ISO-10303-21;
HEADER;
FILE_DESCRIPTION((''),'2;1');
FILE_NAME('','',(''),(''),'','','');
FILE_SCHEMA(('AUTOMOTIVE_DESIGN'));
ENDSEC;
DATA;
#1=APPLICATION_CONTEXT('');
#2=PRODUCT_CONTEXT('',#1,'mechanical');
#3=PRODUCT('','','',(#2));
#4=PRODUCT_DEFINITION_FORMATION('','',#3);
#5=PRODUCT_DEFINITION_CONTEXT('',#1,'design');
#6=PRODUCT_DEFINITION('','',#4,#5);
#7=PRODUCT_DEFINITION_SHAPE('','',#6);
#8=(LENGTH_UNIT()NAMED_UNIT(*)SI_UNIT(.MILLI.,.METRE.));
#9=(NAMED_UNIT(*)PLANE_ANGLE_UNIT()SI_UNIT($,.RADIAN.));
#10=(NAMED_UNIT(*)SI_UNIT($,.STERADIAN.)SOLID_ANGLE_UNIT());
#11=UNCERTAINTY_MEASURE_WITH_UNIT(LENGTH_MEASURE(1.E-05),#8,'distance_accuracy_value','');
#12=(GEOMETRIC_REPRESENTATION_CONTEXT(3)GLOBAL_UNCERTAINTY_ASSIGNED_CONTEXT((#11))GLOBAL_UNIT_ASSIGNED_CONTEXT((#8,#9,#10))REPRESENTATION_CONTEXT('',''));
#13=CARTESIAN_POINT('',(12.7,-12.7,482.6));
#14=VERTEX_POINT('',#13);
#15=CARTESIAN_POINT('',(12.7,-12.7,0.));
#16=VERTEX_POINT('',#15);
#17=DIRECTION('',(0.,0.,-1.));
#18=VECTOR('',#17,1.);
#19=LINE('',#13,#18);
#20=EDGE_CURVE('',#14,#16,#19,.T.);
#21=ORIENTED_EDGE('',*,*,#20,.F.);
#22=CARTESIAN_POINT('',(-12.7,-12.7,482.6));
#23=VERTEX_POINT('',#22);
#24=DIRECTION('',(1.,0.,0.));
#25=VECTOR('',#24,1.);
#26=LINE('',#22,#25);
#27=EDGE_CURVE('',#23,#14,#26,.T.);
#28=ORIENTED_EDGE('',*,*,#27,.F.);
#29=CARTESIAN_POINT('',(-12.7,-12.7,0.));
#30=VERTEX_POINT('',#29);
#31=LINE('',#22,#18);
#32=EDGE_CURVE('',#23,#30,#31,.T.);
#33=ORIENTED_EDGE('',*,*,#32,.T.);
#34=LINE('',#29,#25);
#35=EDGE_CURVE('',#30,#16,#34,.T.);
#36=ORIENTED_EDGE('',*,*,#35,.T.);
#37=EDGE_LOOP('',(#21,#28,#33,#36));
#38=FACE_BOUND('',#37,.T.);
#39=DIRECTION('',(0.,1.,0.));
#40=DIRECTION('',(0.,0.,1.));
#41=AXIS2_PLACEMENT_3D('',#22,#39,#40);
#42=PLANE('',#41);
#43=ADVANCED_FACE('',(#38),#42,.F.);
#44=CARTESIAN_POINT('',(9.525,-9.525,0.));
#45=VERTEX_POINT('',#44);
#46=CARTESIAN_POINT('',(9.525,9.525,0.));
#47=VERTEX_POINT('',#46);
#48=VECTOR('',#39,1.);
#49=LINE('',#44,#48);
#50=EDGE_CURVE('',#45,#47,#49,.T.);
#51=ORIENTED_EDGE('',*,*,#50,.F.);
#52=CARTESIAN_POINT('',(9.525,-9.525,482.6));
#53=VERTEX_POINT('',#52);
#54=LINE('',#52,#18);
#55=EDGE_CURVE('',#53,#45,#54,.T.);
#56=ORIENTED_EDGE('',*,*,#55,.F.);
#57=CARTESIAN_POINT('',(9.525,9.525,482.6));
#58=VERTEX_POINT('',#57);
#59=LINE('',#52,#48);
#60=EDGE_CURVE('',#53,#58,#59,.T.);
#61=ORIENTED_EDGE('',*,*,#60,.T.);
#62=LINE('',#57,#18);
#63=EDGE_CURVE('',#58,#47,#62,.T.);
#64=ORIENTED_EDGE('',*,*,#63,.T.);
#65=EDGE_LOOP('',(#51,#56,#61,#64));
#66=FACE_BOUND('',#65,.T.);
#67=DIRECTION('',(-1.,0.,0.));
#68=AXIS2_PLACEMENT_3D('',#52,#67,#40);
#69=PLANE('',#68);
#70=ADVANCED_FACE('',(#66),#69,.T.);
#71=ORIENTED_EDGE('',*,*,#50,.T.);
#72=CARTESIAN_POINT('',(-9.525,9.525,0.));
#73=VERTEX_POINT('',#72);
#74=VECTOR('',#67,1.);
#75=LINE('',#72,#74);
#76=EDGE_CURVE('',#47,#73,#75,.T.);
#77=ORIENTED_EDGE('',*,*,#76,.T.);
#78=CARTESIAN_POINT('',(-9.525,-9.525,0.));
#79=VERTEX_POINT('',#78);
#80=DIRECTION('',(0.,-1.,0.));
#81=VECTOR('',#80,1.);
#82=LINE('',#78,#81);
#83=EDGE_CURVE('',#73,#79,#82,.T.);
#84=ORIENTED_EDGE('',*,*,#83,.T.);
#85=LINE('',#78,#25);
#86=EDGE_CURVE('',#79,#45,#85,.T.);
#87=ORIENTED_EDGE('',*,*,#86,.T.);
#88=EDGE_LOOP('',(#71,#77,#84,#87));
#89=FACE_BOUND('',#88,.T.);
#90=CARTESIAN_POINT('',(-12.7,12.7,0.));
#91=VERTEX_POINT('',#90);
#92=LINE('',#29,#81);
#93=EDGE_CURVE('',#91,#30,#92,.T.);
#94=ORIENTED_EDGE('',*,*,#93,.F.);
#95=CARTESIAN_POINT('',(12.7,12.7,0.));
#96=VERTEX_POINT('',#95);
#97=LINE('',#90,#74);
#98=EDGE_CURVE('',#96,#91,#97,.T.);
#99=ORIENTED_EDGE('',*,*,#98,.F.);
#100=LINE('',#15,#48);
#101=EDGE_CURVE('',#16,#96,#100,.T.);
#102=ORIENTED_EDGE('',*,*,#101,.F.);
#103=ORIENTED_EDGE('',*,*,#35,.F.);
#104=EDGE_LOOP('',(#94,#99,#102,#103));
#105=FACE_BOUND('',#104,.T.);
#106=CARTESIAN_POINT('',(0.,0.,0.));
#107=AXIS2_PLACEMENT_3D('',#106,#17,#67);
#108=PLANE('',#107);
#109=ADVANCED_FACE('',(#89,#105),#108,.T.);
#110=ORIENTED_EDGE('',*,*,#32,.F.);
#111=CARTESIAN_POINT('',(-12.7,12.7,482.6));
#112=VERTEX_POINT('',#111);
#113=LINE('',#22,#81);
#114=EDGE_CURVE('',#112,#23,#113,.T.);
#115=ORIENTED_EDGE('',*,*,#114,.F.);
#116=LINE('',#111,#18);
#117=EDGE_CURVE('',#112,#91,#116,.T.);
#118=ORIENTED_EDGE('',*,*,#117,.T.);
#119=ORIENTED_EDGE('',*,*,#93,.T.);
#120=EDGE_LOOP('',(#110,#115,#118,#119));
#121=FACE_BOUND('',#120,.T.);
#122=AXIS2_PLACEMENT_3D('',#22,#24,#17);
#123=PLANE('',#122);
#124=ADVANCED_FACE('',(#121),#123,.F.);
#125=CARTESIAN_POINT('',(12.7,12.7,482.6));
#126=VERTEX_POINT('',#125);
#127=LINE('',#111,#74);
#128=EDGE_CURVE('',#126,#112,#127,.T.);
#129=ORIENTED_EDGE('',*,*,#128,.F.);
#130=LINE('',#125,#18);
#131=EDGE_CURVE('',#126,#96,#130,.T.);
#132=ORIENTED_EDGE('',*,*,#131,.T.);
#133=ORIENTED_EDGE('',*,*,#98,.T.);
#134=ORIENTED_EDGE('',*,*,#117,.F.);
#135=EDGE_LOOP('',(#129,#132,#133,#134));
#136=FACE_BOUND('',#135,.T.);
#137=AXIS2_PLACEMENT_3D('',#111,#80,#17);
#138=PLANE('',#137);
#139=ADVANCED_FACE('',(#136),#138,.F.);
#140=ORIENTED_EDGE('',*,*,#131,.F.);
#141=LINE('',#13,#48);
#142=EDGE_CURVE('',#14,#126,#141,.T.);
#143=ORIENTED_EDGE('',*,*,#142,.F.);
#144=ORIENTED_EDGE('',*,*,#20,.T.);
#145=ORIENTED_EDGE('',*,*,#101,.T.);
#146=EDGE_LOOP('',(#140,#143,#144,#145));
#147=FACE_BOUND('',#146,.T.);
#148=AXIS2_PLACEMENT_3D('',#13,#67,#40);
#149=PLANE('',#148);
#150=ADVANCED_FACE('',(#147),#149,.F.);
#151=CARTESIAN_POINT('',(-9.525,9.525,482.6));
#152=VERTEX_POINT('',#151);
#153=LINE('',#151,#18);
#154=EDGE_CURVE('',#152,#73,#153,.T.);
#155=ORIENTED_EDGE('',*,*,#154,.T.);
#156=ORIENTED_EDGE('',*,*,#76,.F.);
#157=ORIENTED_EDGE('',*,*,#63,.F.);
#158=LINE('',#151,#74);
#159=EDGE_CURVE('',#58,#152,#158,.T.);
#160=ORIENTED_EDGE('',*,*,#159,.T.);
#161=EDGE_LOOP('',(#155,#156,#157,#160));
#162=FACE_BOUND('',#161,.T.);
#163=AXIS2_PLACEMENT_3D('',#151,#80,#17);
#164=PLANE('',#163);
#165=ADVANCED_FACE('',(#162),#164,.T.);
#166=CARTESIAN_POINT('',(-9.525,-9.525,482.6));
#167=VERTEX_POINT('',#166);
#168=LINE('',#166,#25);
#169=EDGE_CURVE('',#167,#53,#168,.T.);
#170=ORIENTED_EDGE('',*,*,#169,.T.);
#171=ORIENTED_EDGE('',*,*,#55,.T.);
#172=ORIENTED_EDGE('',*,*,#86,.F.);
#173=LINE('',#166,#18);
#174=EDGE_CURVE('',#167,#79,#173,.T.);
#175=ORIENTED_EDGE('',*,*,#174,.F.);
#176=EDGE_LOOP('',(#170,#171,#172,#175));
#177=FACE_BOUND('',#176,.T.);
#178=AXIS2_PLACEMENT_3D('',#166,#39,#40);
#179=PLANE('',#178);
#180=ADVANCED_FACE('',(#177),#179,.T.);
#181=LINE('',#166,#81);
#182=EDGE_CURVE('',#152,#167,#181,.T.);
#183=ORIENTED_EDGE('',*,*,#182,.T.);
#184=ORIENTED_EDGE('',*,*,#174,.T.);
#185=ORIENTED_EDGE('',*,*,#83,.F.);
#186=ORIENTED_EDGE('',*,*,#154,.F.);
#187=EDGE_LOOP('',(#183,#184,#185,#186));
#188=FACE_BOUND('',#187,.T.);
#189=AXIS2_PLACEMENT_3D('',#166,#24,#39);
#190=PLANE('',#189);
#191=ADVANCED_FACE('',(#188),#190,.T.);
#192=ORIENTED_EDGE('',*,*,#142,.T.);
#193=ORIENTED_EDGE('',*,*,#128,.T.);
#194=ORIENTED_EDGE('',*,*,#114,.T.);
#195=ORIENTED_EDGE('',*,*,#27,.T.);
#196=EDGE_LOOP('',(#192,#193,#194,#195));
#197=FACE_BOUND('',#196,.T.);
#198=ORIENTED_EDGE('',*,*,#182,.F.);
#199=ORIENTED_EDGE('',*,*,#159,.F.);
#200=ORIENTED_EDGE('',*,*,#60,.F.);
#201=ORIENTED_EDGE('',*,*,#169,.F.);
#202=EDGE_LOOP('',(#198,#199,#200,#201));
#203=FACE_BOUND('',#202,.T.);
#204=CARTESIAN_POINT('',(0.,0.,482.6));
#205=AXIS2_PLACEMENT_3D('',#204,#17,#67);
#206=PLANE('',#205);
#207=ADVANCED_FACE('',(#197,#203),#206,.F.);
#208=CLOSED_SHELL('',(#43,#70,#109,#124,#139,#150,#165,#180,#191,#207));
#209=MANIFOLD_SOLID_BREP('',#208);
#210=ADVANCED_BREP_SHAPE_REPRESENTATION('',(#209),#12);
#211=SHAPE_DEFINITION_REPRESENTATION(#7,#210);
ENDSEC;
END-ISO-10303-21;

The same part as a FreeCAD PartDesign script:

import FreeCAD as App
import Part
import Sketcher
from FreeCAD import Vector
Q = App.Units.Quantity

doc = App.newDocument("Part")
body = doc.addObject("PartDesign::Body", "Body")

# Sketch on XY plane
sketch1 = body.newObject("Sketcher::SketchObject", "Sketch")
sketch1.AttachmentSupport = (doc.getObject("XY_Plane"), [""])
sketch1.MapMode = "FlatFace"
sketch1.addGeometry([
    Part.LineSegment(Vector(-13, 13, 0), Vector(-13, -13, 0)),  # 0
    Part.LineSegment(Vector(-13, -13, 0), Vector(13, -13, 0)),  # 1
    Part.LineSegment(Vector(13, -13, 0), Vector(13, 13, 0)),  # 2
    Part.LineSegment(Vector(13, 13, 0), Vector(-13, 13, 0)),  # 3
    Part.LineSegment(Vector(10, -10, 0), Vector(-10, -10, 0)),  # 4
    Part.LineSegment(Vector(-10, -10, 0), Vector(-10, 10, 0)),  # 5
    Part.LineSegment(Vector(-10, 10, 0), Vector(10, 10, 0)),  # 6
    Part.LineSegment(Vector(10, 10, 0), Vector(10, -10, 0)),  # 7
], False)
sketch1.addConstraint([
    Sketcher.Constraint("Coincident", 0, 2, 1, 1),
    Sketcher.Constraint("Coincident", 1, 2, 2, 1),
    Sketcher.Constraint("Coincident", 2, 2, 3, 1),
    Sketcher.Constraint("Coincident", 3, 2, 0, 1),
    Sketcher.Constraint("Coincident", 4, 2, 5, 1),
    Sketcher.Constraint("Coincident", 5, 2, 6, 1),
    Sketcher.Constraint("Coincident", 6, 2, 7, 1),
    Sketcher.Constraint("Coincident", 7, 2, 4, 1),
    Sketcher.Constraint("Vertical", 0),
    Sketcher.Constraint("Horizontal", 1),
    Sketcher.Constraint("Vertical", 2),
    Sketcher.Constraint("Horizontal", 3),
    Sketcher.Constraint("Horizontal", 4),
    Sketcher.Constraint("Vertical", 5),
    Sketcher.Constraint("Horizontal", 6),
    Sketcher.Constraint("Vertical", 7),
    Sketcher.Constraint("Symmetric", 0, 2, 2, 2, -1, 1),
    Sketcher.Constraint("Symmetric", 4, 2, 6, 2, -1, 1),
    Sketcher.Constraint("Equal", 3, 0),
    Sketcher.Constraint("Equal", 6, 5),
    Sketcher.Constraint("DistanceX", 1, 1, 1, 2, Q("1 in")),
    Sketcher.Constraint("DistanceX", 4, 2, 4, 1, Q("0.75 in")),
])
pad1 = body.newObject("PartDesign::Pad", "Pad")
pad1.Profile = sketch1
pad1.Length = Q("19 in")

doc.recompute()
